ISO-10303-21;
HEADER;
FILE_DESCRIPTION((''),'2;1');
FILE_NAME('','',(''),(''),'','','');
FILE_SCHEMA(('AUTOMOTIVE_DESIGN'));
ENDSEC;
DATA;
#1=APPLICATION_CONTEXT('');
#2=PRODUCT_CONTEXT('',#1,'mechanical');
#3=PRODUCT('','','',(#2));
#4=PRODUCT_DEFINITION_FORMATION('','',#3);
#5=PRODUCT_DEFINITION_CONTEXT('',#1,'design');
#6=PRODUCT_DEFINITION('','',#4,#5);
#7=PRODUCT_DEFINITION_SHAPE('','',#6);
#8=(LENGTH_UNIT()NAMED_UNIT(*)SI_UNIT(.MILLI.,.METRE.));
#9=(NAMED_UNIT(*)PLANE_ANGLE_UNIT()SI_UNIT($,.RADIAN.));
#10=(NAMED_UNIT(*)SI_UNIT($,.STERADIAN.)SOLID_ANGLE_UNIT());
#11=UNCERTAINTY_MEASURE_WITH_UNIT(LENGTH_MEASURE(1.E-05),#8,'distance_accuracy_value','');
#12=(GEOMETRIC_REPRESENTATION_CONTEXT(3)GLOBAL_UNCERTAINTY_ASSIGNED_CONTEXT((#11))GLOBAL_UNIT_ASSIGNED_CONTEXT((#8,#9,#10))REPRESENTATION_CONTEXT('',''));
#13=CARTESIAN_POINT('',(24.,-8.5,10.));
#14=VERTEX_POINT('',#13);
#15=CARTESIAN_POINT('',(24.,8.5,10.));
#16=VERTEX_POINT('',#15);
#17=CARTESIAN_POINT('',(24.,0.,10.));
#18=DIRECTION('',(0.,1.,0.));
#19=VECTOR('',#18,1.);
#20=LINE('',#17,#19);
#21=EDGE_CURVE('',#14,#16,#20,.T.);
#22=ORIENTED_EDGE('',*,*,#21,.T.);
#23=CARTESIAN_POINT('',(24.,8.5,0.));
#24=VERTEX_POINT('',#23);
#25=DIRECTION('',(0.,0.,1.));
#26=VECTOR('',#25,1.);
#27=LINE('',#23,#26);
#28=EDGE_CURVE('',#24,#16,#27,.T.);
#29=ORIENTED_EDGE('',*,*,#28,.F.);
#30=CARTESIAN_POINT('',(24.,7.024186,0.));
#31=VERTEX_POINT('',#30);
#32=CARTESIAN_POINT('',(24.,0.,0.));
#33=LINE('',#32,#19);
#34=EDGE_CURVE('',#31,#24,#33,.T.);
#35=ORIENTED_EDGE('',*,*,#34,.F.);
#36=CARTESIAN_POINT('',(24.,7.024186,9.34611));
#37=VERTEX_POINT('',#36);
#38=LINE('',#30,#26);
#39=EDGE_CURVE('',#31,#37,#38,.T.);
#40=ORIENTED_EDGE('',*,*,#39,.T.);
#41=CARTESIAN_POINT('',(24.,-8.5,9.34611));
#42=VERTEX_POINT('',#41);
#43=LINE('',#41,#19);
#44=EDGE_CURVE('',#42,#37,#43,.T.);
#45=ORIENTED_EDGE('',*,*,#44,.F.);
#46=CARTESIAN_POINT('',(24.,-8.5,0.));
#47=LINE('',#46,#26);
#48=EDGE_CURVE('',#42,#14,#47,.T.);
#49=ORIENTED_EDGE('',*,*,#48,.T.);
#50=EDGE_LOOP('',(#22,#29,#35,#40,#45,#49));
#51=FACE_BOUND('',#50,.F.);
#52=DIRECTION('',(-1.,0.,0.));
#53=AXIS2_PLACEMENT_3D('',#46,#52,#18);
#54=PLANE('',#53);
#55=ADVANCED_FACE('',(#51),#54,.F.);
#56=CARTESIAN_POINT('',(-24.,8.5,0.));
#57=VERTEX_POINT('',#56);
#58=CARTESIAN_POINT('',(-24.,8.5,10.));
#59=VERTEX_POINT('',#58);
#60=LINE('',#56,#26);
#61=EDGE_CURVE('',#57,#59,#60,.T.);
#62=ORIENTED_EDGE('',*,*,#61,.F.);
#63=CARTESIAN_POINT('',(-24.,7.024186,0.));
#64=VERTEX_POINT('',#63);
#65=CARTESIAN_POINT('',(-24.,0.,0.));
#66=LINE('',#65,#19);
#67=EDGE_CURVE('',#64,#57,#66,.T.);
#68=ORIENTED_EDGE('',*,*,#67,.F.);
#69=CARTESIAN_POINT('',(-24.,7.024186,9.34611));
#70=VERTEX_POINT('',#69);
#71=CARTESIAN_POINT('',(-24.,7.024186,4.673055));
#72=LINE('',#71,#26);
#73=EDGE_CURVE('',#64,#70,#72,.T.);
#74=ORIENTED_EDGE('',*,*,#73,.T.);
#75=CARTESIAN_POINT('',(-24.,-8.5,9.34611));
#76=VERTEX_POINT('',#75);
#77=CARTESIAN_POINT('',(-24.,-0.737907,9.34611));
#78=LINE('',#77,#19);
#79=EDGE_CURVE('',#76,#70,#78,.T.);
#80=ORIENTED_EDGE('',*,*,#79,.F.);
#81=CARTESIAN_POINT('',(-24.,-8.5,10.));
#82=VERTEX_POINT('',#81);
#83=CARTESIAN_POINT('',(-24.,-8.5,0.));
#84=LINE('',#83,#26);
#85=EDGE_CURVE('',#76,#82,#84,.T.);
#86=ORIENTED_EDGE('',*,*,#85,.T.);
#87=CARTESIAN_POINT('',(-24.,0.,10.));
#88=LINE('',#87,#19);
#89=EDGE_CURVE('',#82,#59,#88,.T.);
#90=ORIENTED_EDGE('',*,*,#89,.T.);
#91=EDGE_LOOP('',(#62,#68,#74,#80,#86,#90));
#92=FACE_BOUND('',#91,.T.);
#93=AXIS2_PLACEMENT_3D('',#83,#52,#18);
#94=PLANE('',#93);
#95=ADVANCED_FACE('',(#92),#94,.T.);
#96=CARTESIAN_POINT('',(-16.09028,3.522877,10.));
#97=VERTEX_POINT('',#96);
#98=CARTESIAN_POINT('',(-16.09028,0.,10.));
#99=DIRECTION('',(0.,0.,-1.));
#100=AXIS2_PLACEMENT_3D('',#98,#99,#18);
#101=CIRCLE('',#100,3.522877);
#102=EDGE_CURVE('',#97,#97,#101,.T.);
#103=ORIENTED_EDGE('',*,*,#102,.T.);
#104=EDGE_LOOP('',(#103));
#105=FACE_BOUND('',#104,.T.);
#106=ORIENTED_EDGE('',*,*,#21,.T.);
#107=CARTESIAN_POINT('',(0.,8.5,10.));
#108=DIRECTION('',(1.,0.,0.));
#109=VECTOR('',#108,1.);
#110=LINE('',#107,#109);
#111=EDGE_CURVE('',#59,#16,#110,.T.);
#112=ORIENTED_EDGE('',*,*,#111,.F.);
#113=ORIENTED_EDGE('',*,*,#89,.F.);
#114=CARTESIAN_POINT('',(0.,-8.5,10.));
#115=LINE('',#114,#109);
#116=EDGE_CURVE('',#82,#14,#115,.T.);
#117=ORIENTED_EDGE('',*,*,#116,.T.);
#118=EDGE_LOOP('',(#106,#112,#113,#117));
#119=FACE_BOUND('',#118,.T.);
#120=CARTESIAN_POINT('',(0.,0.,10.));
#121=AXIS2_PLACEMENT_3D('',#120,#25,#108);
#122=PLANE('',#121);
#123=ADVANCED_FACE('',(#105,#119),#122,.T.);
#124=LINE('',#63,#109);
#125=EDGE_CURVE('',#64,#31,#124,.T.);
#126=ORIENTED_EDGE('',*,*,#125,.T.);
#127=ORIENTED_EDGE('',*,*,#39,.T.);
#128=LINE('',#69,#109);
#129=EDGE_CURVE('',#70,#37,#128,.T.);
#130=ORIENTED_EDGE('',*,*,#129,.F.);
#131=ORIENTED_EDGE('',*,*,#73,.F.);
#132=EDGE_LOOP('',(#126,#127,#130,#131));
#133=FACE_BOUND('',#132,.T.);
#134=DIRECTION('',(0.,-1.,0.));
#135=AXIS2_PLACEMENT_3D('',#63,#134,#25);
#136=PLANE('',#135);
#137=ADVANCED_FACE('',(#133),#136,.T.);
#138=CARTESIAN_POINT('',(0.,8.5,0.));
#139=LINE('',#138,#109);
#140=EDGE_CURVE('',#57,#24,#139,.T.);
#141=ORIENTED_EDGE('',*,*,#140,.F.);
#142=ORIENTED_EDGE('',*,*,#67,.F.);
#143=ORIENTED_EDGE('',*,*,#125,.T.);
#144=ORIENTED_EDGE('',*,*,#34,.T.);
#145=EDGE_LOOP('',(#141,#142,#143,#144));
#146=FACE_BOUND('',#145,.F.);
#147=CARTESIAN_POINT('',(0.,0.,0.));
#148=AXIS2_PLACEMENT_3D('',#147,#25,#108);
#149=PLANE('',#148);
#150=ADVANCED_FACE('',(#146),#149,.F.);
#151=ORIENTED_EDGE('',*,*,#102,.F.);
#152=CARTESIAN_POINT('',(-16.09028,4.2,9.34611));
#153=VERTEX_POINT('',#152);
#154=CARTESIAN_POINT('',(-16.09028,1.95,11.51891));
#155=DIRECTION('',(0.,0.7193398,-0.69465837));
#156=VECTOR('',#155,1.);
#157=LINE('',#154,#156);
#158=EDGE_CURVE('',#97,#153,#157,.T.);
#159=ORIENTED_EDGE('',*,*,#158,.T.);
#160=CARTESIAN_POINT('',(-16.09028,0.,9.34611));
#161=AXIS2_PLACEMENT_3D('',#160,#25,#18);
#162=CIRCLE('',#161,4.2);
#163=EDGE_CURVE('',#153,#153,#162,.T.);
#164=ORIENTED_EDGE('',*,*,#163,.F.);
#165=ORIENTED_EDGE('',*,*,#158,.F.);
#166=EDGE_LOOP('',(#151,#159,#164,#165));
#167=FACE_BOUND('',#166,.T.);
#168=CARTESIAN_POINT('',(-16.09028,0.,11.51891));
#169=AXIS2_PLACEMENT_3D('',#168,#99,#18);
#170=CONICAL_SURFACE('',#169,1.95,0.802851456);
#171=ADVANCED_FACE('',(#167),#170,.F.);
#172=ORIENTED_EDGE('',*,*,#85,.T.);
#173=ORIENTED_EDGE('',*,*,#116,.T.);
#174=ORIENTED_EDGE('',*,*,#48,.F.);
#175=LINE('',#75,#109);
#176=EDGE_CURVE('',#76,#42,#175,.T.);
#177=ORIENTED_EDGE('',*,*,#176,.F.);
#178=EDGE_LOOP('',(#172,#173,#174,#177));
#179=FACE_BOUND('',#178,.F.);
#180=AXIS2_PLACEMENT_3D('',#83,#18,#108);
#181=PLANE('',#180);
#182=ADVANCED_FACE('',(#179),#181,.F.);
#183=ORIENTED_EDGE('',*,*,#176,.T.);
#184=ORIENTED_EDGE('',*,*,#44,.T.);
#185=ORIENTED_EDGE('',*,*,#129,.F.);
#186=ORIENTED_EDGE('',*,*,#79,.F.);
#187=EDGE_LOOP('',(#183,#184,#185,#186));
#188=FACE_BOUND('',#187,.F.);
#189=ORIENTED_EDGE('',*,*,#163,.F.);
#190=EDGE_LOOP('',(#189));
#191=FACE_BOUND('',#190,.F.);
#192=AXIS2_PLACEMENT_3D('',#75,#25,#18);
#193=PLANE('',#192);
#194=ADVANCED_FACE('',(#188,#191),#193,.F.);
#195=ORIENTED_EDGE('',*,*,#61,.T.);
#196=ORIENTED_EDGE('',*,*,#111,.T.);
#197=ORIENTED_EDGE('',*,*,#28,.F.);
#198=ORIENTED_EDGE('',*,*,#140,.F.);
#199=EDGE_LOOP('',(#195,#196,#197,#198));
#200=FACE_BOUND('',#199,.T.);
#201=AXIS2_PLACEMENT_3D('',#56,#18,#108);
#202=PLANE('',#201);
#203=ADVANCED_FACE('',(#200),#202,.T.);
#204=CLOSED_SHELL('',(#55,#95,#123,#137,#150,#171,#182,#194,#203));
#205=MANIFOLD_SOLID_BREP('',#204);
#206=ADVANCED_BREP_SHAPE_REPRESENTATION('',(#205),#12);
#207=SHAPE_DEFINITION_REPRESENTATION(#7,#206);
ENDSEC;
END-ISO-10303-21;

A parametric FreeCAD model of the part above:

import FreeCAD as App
import Part
import Sketcher

V = App.Vector
Q = App.Units.Quantity


def add_polygon(sketch, points):
    """Adds a closed chain of lines whose ends are joined by coincident constraints."""
    first, n = sketch.GeometryCount, len(points)
    for a, b in zip(points, points[1:] + points[:1]):
        sketch.addGeometry(Part.LineSegment(App.Vector(*a, 0), App.Vector(*b, 0)), False)
    for i in range(n):
        sketch.addConstraint(Sketcher.Constraint("Coincident", first + i, 2, first + (i + 1) % n, 1))

doc = App.newDocument("Part")
body = doc.addObject("PartDesign::Body", "Body")

# Sketch on XY plane
sketch1 = doc.addObject("Sketcher::SketchObject", "Sketch")
body.addObject(sketch1)
sketch1.AttachmentSupport = (doc.XY_Plane, [""])
sketch1.MapMode = "FlatFace"
add_polygon(sketch1, [(-24, 8), (-24, -8), (24, -8), (24, 8)])  # lines 0-3
sketch1.addConstraint([
    Sketcher.Constraint("Vertical", 0),
    Sketcher.Constraint("Horizontal", 1),
    Sketcher.Constraint("Vertical", 2),
    Sketcher.Constraint("Horizontal", 3),
    Sketcher.Constraint("Symmetric", 0, 2, 2, 2, -1, 1),
    Sketcher.Constraint("DistanceX", 1, 1, 1, 2, 48.0),
    Sketcher.Constraint("DistanceY", 0, 2, 0, 1, 17.0),
])
pad1 = doc.addObject("PartDesign::Pad", "Pad")
body.addObject(pad1)
pad1.Profile = sketch1
pad1.Length = 10

# Sketch on YZ plane
sketch2 = doc.addObject("Sketcher::SketchObject", "Sketch001")
body.addObject(sketch2)
sketch2.AttachmentSupport = (doc.YZ_Plane, [""])
sketch2.MapMode = "FlatFace"
sketch2.AttachmentOffset = App.Placement(V(0, 0, -24), App.Rotation())
add_polygon(sketch2, [(7, 0), (-8, 0), (-8, 9), (7, 9)])  # lines 0-3
sketch2.addConstraint([
    Sketcher.Constraint("Horizontal", 0),
    Sketcher.Constraint("Vertical", 1),
    Sketcher.Constraint("Horizontal", 2),
    Sketcher.Constraint("Vertical", 3),
    Sketcher.Constraint("PointOnObject", 0, 2, -1),
    Sketcher.Constraint("DistanceX", 0, 2, -1, 1, 8.5),
    Sketcher.Constraint("DistanceY", 1, 1, 1, 2, 9.34611),
    Sketcher.Constraint("DistanceX", 0, 2, 0, 1, 15.524186),
])
pocket1 = doc.addObject("PartDesign::Pocket", "Pocket")
body.addObject(pocket1)
pocket1.Profile = sketch2
pocket1.Type = "ThroughAll"
pocket1.Reversed = True

# Sketch on YZ plane
sketch3 = doc.addObject("Sketcher::SketchObject", "Sketch002")
body.addObject(sketch3)
sketch3.AttachmentSupport = (doc.YZ_Plane, [""])
sketch3.MapMode = "FlatFace"
sketch3.AttachmentOffset = App.Placement(V(0, 0, -16.09028), App.Rotation())
add_polygon(sketch3, [(0, 10), (0, 9.3), (4.2, 9.3), (1.9, 11.5), (1.9, 10)])  # lines 0-4
sketch3.addConstraint([
    Sketcher.Constraint("Vertical", 0),
    Sketcher.Constraint("Horizontal", 1),
    Sketcher.Constraint("Vertical", 3),
    Sketcher.Constraint("Horizontal", 4),
    Sketcher.Constraint("PointOnObject", 0, 2, -2),
    Sketcher.Constraint("Angle", 2, Q("136 deg")),
    Sketcher.Constraint("DistanceX", 1, 1, 1, 2, 4.2),
    Sketcher.Constraint("DistanceY", -1, 1, 3, 2, 10.0),
    Sketcher.Constraint("DistanceX", 4, 2, 4, 1, 1.95),
    Sketcher.Constraint("DistanceY", 0, 2, 0, 1, 0.65389),
])
groove = doc.addObject("PartDesign::Groove", "Groove")
body.addObject(groove)
groove.Profile = sketch3
groove.ReferenceAxis = (sketch3, ["V_Axis"])
groove.Angle = 360

doc.recompute()
